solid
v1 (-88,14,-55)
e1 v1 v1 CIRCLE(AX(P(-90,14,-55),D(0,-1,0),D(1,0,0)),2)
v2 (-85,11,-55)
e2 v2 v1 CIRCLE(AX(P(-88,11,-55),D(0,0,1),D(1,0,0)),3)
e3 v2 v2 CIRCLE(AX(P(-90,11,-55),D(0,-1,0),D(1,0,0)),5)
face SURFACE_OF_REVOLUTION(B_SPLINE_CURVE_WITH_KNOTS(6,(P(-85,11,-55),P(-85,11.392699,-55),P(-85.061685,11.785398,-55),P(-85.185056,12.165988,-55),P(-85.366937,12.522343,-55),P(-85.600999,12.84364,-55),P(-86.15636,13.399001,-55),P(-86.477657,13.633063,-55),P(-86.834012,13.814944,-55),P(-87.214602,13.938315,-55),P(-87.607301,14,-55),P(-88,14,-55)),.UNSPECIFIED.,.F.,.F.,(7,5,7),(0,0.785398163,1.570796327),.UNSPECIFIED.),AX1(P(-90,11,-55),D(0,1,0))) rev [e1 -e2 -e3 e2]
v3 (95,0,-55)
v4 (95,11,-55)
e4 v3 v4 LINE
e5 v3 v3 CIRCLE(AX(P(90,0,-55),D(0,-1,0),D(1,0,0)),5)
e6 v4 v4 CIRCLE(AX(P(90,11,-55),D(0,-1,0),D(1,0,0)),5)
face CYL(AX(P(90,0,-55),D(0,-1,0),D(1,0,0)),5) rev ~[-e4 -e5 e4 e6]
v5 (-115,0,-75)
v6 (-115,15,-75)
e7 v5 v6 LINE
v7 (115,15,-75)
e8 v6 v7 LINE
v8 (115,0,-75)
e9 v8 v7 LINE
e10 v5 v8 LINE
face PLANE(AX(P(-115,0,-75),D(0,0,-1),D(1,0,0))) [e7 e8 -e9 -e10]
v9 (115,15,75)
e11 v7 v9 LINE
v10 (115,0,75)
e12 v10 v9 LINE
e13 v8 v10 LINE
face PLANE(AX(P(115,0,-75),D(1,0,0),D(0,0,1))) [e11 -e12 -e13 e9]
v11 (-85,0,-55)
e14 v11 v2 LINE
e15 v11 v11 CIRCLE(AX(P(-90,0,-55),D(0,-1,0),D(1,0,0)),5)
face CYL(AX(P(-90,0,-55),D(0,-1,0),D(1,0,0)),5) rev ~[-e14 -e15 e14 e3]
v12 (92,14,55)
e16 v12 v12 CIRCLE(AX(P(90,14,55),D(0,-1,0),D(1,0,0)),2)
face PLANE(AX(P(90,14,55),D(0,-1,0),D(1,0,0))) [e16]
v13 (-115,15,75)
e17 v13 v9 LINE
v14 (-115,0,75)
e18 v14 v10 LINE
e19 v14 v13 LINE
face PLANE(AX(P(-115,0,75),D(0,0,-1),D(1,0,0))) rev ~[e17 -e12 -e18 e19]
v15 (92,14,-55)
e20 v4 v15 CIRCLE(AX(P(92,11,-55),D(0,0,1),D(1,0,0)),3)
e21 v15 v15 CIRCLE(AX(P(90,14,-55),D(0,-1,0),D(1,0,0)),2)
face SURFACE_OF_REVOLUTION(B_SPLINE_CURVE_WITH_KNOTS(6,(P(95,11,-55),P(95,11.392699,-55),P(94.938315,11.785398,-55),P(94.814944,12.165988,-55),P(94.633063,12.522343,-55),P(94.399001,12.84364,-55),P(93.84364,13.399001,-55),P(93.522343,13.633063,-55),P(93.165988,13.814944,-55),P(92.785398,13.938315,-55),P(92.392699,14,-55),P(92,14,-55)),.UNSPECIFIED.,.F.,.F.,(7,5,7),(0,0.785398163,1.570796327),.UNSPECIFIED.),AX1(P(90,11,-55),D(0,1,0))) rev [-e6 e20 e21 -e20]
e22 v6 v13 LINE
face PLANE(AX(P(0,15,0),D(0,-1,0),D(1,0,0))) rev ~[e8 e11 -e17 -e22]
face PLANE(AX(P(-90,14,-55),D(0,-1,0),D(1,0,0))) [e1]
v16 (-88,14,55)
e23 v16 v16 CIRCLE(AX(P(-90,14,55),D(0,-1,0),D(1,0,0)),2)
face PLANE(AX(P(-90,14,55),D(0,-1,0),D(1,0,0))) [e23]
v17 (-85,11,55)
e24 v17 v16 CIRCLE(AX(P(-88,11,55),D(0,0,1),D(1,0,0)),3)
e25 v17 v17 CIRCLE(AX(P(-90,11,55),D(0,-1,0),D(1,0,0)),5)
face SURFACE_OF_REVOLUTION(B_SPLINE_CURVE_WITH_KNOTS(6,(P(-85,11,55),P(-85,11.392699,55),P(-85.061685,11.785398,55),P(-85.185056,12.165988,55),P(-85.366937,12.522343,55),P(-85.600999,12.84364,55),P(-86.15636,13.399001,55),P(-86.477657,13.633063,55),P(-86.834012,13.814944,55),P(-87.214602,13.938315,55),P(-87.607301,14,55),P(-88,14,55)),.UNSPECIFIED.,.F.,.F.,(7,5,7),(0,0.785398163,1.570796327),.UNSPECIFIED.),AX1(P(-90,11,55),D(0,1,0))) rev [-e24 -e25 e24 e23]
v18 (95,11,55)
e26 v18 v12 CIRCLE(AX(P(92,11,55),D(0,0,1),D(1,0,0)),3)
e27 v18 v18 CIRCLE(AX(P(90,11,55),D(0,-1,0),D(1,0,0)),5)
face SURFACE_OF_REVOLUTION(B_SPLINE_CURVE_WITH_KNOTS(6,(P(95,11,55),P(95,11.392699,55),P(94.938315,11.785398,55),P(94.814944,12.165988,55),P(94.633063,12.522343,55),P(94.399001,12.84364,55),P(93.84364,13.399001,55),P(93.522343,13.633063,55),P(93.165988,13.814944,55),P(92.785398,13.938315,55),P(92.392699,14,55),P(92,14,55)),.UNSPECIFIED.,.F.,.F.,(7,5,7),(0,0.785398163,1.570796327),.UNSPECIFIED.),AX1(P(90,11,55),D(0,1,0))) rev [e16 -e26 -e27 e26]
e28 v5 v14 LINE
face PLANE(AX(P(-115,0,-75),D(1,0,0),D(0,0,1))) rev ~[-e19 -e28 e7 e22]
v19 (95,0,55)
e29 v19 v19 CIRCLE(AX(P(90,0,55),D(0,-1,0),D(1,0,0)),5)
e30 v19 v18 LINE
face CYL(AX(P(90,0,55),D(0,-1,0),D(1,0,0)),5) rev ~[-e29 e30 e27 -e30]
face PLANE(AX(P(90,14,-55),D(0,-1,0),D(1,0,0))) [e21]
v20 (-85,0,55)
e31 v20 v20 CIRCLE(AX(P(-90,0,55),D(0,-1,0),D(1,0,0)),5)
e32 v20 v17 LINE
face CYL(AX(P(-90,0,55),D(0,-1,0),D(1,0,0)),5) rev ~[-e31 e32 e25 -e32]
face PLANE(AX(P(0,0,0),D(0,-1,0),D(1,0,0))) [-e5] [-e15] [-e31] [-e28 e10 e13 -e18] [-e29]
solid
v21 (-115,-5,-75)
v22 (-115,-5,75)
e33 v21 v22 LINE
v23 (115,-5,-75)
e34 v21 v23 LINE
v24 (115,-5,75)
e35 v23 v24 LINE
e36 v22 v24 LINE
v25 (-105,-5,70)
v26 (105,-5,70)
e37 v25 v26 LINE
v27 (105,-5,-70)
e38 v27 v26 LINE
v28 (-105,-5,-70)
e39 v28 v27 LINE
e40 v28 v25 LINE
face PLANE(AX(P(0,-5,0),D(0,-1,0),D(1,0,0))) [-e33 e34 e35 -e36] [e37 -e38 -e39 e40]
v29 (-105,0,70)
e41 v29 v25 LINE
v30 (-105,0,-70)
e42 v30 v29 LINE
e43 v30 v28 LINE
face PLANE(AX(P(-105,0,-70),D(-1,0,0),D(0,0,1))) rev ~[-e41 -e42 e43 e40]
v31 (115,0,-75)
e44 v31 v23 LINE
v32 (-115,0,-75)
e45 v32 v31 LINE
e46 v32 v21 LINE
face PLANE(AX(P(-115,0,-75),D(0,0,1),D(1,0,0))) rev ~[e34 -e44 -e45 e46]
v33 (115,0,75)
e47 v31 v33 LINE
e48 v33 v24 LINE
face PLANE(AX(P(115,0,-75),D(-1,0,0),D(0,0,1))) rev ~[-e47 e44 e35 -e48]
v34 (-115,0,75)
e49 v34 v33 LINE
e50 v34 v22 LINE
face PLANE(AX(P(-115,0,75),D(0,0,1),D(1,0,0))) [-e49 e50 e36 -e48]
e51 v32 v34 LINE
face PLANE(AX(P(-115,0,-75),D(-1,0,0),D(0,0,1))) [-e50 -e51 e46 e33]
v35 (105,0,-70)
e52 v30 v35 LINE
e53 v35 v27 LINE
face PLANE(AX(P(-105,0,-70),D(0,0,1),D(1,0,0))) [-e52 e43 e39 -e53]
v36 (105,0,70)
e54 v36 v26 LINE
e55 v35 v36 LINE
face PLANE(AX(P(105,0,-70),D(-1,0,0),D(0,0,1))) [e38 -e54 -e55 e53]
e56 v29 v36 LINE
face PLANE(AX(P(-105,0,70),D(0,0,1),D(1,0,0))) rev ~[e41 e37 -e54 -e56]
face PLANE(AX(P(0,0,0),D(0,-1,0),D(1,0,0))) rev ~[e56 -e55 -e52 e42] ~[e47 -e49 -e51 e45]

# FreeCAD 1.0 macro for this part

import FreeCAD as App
import Part
import Sketcher
Q = App.Units.Quantity


def edges_at(feature, points):
    """Names of the edges that pass closest to the given points."""
    edges = feature.Shape.Edges
    near = lambda p: min(range(len(edges)), key=lambda i: edges[i].distToShape(Part.Vertex(*p))[0])
    return sorted({f"Edge{near(p) + 1}" for p in points})

doc = App.newDocument("Part")
params = doc.addObject("Spreadsheet::Sheet", "Params")
for row, (alias, value) in enumerate([
    ("sketch1_width", "230 mm"),
    ("sketch1_width2", "210 mm"),
    ("sketch1_height", "150 mm"),
    ("sketch1_height2", "140 mm"),
    ("pad1_length", "5 mm"),
    ("sketch2_width", "230 mm"),
    ("sketch2_height", "150 mm"),
    ("pad2_length", "15 mm"),
    ("sketch3_diameter", "10 mm"),
    ("pocket1_length", "14 mm"),
    ("fillet_radius", "3 mm"),
], start=1):
    params.set(f"A{row}", alias)
    params.set(f"B{row}", "=" + value)
    params.setAlias(f"B{row}", alias)

body = doc.addObject("PartDesign::Body", "Body")

sketch1 = body.newObject("Sketcher::SketchObject", "Sketch")
sketch1.AttachmentSupport = (doc.getObject("XZ_Plane"), [""])
sketch1.MapMode = "FlatFace"
sketch1.addGeometry([
    Part.LineSegment(App.Vector(-115, 75, 0), App.Vector(-115, -75, 0)),
    Part.LineSegment(App.Vector(-115, -75, 0), App.Vector(115, -75, 0)),
    Part.LineSegment(App.Vector(115, -75, 0), App.Vector(115, 75, 0)),
    Part.LineSegment(App.Vector(115, 75, 0), App.Vector(-115, 75, 0)),
    Part.LineSegment(App.Vector(105, -70, 0), App.Vector(-105, -70, 0)),
    Part.LineSegment(App.Vector(-105, -70, 0), App.Vector(-105, 70, 0)),
    Part.LineSegment(App.Vector(-105, 70, 0), App.Vector(105, 70, 0)),
    Part.LineSegment(App.Vector(105, 70, 0), App.Vector(105, -70, 0)),
], False)
sketch1.addConstraint([
    Sketcher.Constraint("Coincident", 0, 2, 1, 1),
    Sketcher.Constraint("Coincident", 1, 2, 2, 1),
    Sketcher.Constraint("Coincident", 2, 2, 3, 1),
    Sketcher.Constraint("Coincident", 3, 2, 0, 1),
    Sketcher.Constraint("Coincident", 4, 2, 5, 1),
    Sketcher.Constraint("Coincident", 5, 2, 6, 1),
    Sketcher.Constraint("Coincident", 6, 2, 7, 1),
    Sketcher.Constraint("Coincident", 7, 2, 4, 1),
    Sketcher.Constraint("Vertical", 0),
    Sketcher.Constraint("Horizontal", 1),
    Sketcher.Constraint("Vertical", 2),
    Sketcher.Constraint("Horizontal", 3),
    Sketcher.Constraint("Horizontal", 4),
    Sketcher.Constraint("Vertical", 5),
    Sketcher.Constraint("Horizontal", 6),
    Sketcher.Constraint("Vertical", 7),
    Sketcher.Constraint("Symmetric", 0, 2, 2, 2, -1, 1),
    Sketcher.Constraint("Symmetric", 4, 2, 6, 2, -1, 1),
    Sketcher.Constraint("DistanceX", 1, 1, 1, 2, Q("230 mm")),
    Sketcher.Constraint("DistanceX", 4, 2, 4, 1, Q("210 mm")),
    Sketcher.Constraint("DistanceY", 0, 2, 0, 1, Q("150 mm")),
    Sketcher.Constraint("DistanceY", 5, 1, 5, 2, Q("140 mm")),
])
sketch1.setExpression("Constraints[18]", "Params.sketch1_width")
sketch1.setExpression("Constraints[19]", "Params.sketch1_width2")
sketch1.setExpression("Constraints[20]", "Params.sketch1_height")
sketch1.setExpression("Constraints[21]", "Params.sketch1_height2")
pad1 = body.newObject("PartDesign::Pad", "Pad")
pad1.Profile = sketch1
pad1.setExpression("Length", "Params.pad1_length")
body2 = doc.addObject("PartDesign::Body", "Body001")

sketch2 = body2.newObject("Sketcher::SketchObject", "Sketch001")
sketch2.AttachmentSupport = (doc.getObject("XZ_Plane001"), [""])
sketch2.MapMode = "FlatFace"
sketch2.addGeometry([
    Part.LineSegment(App.Vector(-115, 75, 0), App.Vector(-115, -75, 0)),
    Part.LineSegment(App.Vector(-115, -75, 0), App.Vector(115, -75, 0)),
    Part.LineSegment(App.Vector(115, -75, 0), App.Vector(115, 75, 0)),
    Part.LineSegment(App.Vector(115, 75, 0), App.Vector(-115, 75, 0)),
], False)
sketch2.addConstraint([
    Sketcher.Constraint("Coincident", 0, 2, 1, 1),
    Sketcher.Constraint("Coincident", 1, 2, 2, 1),
    Sketcher.Constraint("Coincident", 2, 2, 3, 1),
    Sketcher.Constraint("Coincident", 3, 2, 0, 1),
    Sketcher.Constraint("Vertical", 0),
    Sketcher.Constraint("Horizontal", 1),
    Sketcher.Constraint("Vertical", 2),
    Sketcher.Constraint("Horizontal", 3),
    Sketcher.Constraint("Symmetric", 0, 2, 2, 2, -1, 1),
    Sketcher.Constraint("DistanceX", 1, 1, 1, 2, Q("230 mm")),
    Sketcher.Constraint("DistanceY", 0, 2, 0, 1, Q("150 mm")),
])
sketch2.setExpression("Constraints[9]", "Params.sketch2_width")
sketch2.setExpression("Constraints[10]", "Params.sketch2_height")
pad2 = body2.newObject("PartDesign::Pad", "Pad001")
pad2.Profile = sketch2
pad2.setExpression("Length", "Params.pad2_length")
pad2.Reversed = True

sketch3 = body2.newObject("Sketcher::SketchObject", "Sketch002")
sketch3.AttachmentSupport = (doc.getObject("XZ_Plane001"), [""])
sketch3.MapMode = "FlatFace"
sketch3.addGeometry([
    Part.Circle(App.Vector(-90, 55, 0), App.Vector(0, 0, 1), 5),
    Part.Circle(App.Vector(-90, -55, 0), App.Vector(0, 0, 1), 5),
    Part.Circle(App.Vector(90, -55, 0), App.Vector(0, 0, 1), 5),
    Part.Circle(App.Vector(90, 55, 0), App.Vector(0, 0, 1), 5),
], False)
sketch3.addConstraint([
    Sketcher.Constraint("Equal", 0, 1),
    Sketcher.Constraint("Equal", 1, 2),
    Sketcher.Constraint("Equal", 2, 3),
    Sketcher.Constraint("Symmetric", 0, 3, 2, 3, -1, 1),
    Sketcher.Constraint("Symmetric", 1, 3, 3, 3, -1, 1),
    Sketcher.Constraint("Symmetric", 1, 3, 2, 3, -2),
    Sketcher.Constraint("Diameter", 0, Q("10 mm")),
    Sketcher.Constraint("DistanceX", 0, 3, -1, 1, Q("90 mm")),
    Sketcher.Constraint("DistanceY", -1, 1, 0, 3, Q("55 mm")),
])
sketch3.setExpression("Constraints[6]", "Params.sketch3_diameter")
pocket1 = body2.newObject("PartDesign::Pocket", "Pocket")
pocket1.Profile = sketch3
pocket1.setExpression("Length", "Params.pocket1_length")
doc.recompute()

fillet = body2.newObject("PartDesign::Fillet", "Fillet")
fillet.Base = (pocket1, edges_at(pocket1, [
    (-95, 14, 55),
    (-95, 14, -55),
    (85, 14, -55),
    (85, 14, 55),
]))
fillet.setExpression("Radius", "Params.fillet_radius")

doc.recompute()
